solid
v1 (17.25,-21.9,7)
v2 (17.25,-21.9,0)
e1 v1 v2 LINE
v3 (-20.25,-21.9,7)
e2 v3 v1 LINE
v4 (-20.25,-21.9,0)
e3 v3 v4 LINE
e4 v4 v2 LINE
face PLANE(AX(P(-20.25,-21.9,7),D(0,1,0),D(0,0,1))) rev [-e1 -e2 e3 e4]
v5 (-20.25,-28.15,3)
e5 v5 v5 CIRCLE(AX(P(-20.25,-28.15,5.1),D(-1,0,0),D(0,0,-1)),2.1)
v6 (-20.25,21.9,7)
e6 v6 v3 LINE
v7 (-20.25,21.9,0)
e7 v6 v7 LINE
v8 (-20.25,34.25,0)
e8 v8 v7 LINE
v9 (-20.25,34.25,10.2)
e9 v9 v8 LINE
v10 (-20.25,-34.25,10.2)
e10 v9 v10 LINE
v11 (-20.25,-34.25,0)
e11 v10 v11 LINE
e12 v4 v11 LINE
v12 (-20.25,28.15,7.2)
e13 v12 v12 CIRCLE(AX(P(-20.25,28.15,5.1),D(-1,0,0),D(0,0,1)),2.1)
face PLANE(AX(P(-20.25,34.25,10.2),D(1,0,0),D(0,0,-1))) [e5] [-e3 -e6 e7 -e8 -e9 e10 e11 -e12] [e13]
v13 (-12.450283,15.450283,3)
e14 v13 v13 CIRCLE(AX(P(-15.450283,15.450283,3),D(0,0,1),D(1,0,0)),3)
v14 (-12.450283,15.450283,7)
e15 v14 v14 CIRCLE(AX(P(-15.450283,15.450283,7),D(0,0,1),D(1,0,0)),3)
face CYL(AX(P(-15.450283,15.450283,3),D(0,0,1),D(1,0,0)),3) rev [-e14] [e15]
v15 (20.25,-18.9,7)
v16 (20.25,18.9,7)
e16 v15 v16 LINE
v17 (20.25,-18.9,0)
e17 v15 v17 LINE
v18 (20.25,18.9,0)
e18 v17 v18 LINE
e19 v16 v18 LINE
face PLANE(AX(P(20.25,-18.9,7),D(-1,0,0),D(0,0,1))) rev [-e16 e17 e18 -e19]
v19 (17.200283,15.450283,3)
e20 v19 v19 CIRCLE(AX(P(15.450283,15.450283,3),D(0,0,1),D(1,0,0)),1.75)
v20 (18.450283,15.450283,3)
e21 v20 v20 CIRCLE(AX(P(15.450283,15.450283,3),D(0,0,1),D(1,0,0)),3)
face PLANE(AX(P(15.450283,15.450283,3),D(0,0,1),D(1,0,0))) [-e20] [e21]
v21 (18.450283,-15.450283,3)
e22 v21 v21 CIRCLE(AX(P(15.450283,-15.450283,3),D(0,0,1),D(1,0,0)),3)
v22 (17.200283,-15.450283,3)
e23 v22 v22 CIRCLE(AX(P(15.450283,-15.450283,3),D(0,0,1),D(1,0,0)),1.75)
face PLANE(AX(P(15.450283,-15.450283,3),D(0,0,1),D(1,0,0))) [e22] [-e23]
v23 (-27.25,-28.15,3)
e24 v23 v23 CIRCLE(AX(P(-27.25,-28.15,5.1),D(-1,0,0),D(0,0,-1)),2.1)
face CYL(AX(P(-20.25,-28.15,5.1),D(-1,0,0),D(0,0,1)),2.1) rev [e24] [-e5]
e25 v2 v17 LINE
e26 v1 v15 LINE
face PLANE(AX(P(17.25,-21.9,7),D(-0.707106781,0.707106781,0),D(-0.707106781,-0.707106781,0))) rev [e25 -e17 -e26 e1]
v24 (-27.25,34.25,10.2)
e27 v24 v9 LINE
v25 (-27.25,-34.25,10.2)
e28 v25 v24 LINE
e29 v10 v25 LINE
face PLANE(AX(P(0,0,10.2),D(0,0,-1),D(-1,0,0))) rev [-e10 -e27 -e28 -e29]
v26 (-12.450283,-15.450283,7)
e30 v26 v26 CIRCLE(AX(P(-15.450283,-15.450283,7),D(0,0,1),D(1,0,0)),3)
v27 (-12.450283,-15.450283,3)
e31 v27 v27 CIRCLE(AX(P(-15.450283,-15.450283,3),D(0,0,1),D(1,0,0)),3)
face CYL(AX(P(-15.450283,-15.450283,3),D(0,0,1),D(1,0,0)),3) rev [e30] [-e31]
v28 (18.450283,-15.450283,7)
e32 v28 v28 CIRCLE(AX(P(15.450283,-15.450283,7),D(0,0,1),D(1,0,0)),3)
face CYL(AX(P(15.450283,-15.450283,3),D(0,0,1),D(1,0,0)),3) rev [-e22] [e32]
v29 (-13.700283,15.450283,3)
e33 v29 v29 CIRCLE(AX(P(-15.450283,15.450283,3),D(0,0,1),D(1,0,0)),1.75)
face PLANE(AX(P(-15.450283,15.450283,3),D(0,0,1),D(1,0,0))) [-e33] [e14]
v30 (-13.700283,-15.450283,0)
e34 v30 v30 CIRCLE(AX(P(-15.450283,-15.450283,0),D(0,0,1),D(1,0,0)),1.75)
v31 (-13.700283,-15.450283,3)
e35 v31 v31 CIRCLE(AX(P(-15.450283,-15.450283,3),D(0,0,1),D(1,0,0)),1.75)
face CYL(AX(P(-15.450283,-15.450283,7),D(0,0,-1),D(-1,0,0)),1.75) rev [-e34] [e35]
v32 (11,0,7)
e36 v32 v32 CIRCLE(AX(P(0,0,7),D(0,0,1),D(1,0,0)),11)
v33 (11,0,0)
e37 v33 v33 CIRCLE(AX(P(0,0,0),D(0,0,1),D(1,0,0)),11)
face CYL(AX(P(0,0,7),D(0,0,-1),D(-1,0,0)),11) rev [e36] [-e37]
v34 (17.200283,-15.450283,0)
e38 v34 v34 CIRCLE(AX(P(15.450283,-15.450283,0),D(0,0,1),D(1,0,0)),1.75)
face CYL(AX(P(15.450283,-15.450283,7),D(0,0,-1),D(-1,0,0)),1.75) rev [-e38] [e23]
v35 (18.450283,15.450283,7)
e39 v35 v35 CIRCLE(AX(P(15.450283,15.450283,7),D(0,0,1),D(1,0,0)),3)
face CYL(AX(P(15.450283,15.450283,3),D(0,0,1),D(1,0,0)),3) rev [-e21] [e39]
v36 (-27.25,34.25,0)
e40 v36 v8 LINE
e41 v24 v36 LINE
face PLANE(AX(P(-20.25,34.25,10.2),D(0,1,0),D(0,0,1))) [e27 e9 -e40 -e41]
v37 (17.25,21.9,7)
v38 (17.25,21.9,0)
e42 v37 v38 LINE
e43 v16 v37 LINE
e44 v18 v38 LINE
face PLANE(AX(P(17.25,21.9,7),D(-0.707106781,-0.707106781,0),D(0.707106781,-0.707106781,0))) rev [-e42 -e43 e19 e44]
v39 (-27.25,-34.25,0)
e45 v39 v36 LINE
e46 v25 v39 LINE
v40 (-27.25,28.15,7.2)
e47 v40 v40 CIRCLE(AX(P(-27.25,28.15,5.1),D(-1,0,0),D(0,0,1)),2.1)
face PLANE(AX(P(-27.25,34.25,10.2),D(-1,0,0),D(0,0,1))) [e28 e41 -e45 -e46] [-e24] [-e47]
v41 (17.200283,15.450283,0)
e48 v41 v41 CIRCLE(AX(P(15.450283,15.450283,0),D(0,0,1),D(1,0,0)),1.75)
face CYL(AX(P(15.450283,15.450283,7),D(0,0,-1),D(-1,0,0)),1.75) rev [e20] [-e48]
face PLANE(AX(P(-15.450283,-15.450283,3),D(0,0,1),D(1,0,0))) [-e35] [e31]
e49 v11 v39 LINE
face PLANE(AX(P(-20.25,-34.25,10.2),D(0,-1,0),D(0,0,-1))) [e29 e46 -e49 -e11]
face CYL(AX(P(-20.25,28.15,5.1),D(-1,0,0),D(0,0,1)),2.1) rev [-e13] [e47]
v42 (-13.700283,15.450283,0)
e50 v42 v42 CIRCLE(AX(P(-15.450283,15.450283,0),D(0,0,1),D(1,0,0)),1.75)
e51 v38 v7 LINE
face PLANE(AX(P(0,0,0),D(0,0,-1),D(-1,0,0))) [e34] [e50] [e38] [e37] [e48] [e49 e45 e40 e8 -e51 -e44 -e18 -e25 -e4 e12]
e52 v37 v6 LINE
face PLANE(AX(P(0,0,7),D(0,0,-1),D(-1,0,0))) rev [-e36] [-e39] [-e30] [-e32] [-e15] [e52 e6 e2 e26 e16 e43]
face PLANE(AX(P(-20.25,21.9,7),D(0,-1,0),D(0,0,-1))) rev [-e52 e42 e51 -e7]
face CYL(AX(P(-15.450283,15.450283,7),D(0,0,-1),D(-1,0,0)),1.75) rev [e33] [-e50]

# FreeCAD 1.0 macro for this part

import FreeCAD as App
import Part
import Sketcher
Q = App.Units.Quantity


def add_polygon(sketch, points):
    """Adds a closed chain of lines whose ends are joined by coincident constraints."""
    first, n = sketch.GeometryCount, len(points)
    for a, b in zip(points, points[1:] + points[:1]):
        sketch.addGeometry(Part.LineSegment(App.Vector(*a, 0), App.Vector(*b, 0)), False)
    for i in range(n):
        sketch.addConstraint(Sketcher.Constraint("Coincident", first + i, 2, first + (i + 1) % n, 1))

doc = App.newDocument("Part")
body = doc.addObject("PartDesign::Body", "Body")

# Sketch on XY plane
sketch1 = body.newObject("Sketcher::SketchObject", "Sketch")
sketch1.AttachmentSupport = (doc.getObject("XY_Plane"), [""])
sketch1.MapMode = "FlatFace"
add_polygon(sketch1, [(17.2, -21.9), (20.2, -18.9), (20.2, 18.9), (17.2, 21.9), (-20.2, 21.9), (-20.2, -21.9)])  # lines 0-5
sketch1.addGeometry(Part.Circle(App.Vector(-15.5, -15.5, 0), App.Vector(0, 0, 1), 1.8), False)  # 6
sketch1.addGeometry(Part.Circle(App.Vector(15.5, -15.5, 0), App.Vector(0, 0, 1), 1.8), False)  # 7
sketch1.addGeometry(Part.Circle(App.Vector(-15.5, 15.5, 0), App.Vector(0, 0, 1), 1.8), False)  # 8
sketch1.addGeometry(Part.Circle(App.Vector(0, 0, 0), App.Vector(0, 0, 1), 11), False)  # 9
sketch1.addGeometry(Part.Circle(App.Vector(15.5, 15.5, 0), App.Vector(0, 0, 1), 1.8), False)  # 10
sketch1.addConstraint([
    Sketcher.Constraint("Vertical", 1),
    Sketcher.Constraint("Horizontal", 3),
    Sketcher.Constraint("Vertical", 4),
    Sketcher.Constraint("Horizontal", 5),
    Sketcher.Constraint("Coincident", 9, 3, -1, 1),
    Sketcher.Constraint("Equal", 6, 7),
    Sketcher.Constraint("Equal", 7, 8),
    Sketcher.Constraint("Equal", 8, 10),
    Sketcher.Constraint("Symmetric", 7, 3, 8, 3, -1, 1),
    Sketcher.Constraint("Symmetric", 6, 3, 10, 3, -1, 1),
    Sketcher.Constraint("Symmetric", 6, 3, 7, 3, -2),
    Sketcher.Constraint("Symmetric", 2, 2, 5, 2, -1),
    Sketcher.Constraint("Perpendicular", 0, 2),
    Sketcher.Constraint("Equal", 0, 2),
    Sketcher.Constraint("Diameter", 9, Q("22 mm")),
    Sketcher.Constraint("Diameter", 6, Q("3.5 mm")),
    Sketcher.Constraint("DistanceX", 3, 2, 3, 1, Q("37.5 mm")),
    Sketcher.Constraint("DistanceY", 1, 1, 1, 2, Q("37.8 mm")),
    Sketcher.Constraint("DistanceY", 4, 2, 4, 1, Q("43.8 mm")),
    Sketcher.Constraint("DistanceX", -1, 1, 0, 2, Q("20.25 mm")),
    Sketcher.Constraint("DistanceX", 6, 3, -1, 1, Q("15.450283 mm")),
    Sketcher.Constraint("DistanceY", 6, 3, -1, 1, Q("15.450283 mm")),
])
pad1 = body.newObject("PartDesign::Pad", "Pad")
pad1.Profile = sketch1
pad1.Length = 7

# Sketch on XY plane
sketch2 = body.newObject("Sketcher::SketchObject", "Sketch001")
sketch2.AttachmentSupport = (doc.getObject("XY_Plane"), [""])
sketch2.MapMode = "FlatFace"
sketch2.AttachmentOffset = App.Placement(App.Vector(0, 0, 7), App.Rotation())
sketch2.addGeometry([
    Part.Circle(App.Vector(15.5, 15.5, 0), App.Vector(0, 0, 1), 3),
    Part.Circle(App.Vector(15.5, -15.5, 0), App.Vector(0, 0, 1), 3),
    Part.Circle(App.Vector(-15.5, -15.5, 0), App.Vector(0, 0, 1), 3),
    Part.Circle(App.Vector(-15.5, 15.5, 0), App.Vector(0, 0, 1), 3),
], False)
sketch2.addConstraint([
    Sketcher.Constraint("Equal", 0, 1),
    Sketcher.Constraint("Equal", 1, 2),
    Sketcher.Constraint("Equal", 2, 3),
    Sketcher.Constraint("Symmetric", 0, 3, 2, 3, -1, 1),
    Sketcher.Constraint("Symmetric", 1, 3, 3, 3, -1, 1),
    Sketcher.Constraint("Symmetric", 1, 3, 2, 3, -2),
    Sketcher.Constraint("Diameter", 0, Q("6 mm")),
    Sketcher.Constraint("DistanceX", -1, 1, 0, 3, Q("15.450283 mm")),
    Sketcher.Constraint("DistanceY", -1, 1, 0, 3, Q("15.450283 mm")),
])
pocket1 = body.newObject("PartDesign::Pocket", "Pocket")
pocket1.Profile = sketch2
pocket1.Length = 4

# Sketch on XY plane
sketch3 = body.newObject("Sketcher::SketchObject", "Sketch002")
sketch3.AttachmentSupport = (doc.getObject("XY_Plane"), [""])
sketch3.MapMode = "FlatFace"
add_polygon(sketch3, [(-20, 34), (-20, -34), (-27, -34), (-27, 34)])  # lines 0-3
sketch3.addConstraint([
    Sketcher.Constraint("Vertical", 0),
    Sketcher.Constraint("Horizontal", 1),
    Sketcher.Constraint("Vertical", 2),
    Sketcher.Constraint("Horizontal", 3),
    Sketcher.Constraint("DistanceX", 1, 2, 1, 1, Q("7 mm")),
    Sketcher.Constraint("DistanceY", 0, 2, 0, 1, Q("68.5 mm")),
    Sketcher.Constraint("DistanceX", 0, 2, -1, 1, Q("20.25 mm")),
    Sketcher.Constraint("DistanceY", 0, 2, -1, 1, Q("34.25 mm")),
])
pad2 = body.newObject("PartDesign::Pad", "Pad001")
pad2.Profile = sketch3
pad2.Length = 10.2

# Sketch on YZ plane
sketch4 = body.newObject("Sketcher::SketchObject", "Sketch003")
sketch4.AttachmentSupport = (doc.getObject("YZ_Plane"), [""])
sketch4.MapMode = "FlatFace"
sketch4.AttachmentOffset = App.Placement(App.Vector(0, 0, -27.25), App.Rotation())
sketch4.addGeometry([
    Part.Circle(App.Vector(28.1, 5.1, 0), App.Vector(0, 0, 1), 2.1),
    Part.Circle(App.Vector(-28.1, 5.1, 0), App.Vector(0, 0, 1), 2.1),
], False)
sketch4.addConstraint([
    Sketcher.Constraint("Equal", 0, 1),
    Sketcher.Constraint("Symmetric", 0, 3, 1, 3, -2),
    Sketcher.Constraint("Diameter", 0, Q("4.2 mm")),
    Sketcher.Constraint("DistanceY", -1, 1, 0, 3, Q("5.1 mm")),
    Sketcher.Constraint("DistanceX", 1, 3, 0, 3, Q("56.3 mm")),
])
pocket2 = body.newObject("PartDesign::Pocket", "Pocket001")
pocket2.Profile = sketch4
pocket2.Length = 7
pocket2.Reversed = True

doc.recompute()
